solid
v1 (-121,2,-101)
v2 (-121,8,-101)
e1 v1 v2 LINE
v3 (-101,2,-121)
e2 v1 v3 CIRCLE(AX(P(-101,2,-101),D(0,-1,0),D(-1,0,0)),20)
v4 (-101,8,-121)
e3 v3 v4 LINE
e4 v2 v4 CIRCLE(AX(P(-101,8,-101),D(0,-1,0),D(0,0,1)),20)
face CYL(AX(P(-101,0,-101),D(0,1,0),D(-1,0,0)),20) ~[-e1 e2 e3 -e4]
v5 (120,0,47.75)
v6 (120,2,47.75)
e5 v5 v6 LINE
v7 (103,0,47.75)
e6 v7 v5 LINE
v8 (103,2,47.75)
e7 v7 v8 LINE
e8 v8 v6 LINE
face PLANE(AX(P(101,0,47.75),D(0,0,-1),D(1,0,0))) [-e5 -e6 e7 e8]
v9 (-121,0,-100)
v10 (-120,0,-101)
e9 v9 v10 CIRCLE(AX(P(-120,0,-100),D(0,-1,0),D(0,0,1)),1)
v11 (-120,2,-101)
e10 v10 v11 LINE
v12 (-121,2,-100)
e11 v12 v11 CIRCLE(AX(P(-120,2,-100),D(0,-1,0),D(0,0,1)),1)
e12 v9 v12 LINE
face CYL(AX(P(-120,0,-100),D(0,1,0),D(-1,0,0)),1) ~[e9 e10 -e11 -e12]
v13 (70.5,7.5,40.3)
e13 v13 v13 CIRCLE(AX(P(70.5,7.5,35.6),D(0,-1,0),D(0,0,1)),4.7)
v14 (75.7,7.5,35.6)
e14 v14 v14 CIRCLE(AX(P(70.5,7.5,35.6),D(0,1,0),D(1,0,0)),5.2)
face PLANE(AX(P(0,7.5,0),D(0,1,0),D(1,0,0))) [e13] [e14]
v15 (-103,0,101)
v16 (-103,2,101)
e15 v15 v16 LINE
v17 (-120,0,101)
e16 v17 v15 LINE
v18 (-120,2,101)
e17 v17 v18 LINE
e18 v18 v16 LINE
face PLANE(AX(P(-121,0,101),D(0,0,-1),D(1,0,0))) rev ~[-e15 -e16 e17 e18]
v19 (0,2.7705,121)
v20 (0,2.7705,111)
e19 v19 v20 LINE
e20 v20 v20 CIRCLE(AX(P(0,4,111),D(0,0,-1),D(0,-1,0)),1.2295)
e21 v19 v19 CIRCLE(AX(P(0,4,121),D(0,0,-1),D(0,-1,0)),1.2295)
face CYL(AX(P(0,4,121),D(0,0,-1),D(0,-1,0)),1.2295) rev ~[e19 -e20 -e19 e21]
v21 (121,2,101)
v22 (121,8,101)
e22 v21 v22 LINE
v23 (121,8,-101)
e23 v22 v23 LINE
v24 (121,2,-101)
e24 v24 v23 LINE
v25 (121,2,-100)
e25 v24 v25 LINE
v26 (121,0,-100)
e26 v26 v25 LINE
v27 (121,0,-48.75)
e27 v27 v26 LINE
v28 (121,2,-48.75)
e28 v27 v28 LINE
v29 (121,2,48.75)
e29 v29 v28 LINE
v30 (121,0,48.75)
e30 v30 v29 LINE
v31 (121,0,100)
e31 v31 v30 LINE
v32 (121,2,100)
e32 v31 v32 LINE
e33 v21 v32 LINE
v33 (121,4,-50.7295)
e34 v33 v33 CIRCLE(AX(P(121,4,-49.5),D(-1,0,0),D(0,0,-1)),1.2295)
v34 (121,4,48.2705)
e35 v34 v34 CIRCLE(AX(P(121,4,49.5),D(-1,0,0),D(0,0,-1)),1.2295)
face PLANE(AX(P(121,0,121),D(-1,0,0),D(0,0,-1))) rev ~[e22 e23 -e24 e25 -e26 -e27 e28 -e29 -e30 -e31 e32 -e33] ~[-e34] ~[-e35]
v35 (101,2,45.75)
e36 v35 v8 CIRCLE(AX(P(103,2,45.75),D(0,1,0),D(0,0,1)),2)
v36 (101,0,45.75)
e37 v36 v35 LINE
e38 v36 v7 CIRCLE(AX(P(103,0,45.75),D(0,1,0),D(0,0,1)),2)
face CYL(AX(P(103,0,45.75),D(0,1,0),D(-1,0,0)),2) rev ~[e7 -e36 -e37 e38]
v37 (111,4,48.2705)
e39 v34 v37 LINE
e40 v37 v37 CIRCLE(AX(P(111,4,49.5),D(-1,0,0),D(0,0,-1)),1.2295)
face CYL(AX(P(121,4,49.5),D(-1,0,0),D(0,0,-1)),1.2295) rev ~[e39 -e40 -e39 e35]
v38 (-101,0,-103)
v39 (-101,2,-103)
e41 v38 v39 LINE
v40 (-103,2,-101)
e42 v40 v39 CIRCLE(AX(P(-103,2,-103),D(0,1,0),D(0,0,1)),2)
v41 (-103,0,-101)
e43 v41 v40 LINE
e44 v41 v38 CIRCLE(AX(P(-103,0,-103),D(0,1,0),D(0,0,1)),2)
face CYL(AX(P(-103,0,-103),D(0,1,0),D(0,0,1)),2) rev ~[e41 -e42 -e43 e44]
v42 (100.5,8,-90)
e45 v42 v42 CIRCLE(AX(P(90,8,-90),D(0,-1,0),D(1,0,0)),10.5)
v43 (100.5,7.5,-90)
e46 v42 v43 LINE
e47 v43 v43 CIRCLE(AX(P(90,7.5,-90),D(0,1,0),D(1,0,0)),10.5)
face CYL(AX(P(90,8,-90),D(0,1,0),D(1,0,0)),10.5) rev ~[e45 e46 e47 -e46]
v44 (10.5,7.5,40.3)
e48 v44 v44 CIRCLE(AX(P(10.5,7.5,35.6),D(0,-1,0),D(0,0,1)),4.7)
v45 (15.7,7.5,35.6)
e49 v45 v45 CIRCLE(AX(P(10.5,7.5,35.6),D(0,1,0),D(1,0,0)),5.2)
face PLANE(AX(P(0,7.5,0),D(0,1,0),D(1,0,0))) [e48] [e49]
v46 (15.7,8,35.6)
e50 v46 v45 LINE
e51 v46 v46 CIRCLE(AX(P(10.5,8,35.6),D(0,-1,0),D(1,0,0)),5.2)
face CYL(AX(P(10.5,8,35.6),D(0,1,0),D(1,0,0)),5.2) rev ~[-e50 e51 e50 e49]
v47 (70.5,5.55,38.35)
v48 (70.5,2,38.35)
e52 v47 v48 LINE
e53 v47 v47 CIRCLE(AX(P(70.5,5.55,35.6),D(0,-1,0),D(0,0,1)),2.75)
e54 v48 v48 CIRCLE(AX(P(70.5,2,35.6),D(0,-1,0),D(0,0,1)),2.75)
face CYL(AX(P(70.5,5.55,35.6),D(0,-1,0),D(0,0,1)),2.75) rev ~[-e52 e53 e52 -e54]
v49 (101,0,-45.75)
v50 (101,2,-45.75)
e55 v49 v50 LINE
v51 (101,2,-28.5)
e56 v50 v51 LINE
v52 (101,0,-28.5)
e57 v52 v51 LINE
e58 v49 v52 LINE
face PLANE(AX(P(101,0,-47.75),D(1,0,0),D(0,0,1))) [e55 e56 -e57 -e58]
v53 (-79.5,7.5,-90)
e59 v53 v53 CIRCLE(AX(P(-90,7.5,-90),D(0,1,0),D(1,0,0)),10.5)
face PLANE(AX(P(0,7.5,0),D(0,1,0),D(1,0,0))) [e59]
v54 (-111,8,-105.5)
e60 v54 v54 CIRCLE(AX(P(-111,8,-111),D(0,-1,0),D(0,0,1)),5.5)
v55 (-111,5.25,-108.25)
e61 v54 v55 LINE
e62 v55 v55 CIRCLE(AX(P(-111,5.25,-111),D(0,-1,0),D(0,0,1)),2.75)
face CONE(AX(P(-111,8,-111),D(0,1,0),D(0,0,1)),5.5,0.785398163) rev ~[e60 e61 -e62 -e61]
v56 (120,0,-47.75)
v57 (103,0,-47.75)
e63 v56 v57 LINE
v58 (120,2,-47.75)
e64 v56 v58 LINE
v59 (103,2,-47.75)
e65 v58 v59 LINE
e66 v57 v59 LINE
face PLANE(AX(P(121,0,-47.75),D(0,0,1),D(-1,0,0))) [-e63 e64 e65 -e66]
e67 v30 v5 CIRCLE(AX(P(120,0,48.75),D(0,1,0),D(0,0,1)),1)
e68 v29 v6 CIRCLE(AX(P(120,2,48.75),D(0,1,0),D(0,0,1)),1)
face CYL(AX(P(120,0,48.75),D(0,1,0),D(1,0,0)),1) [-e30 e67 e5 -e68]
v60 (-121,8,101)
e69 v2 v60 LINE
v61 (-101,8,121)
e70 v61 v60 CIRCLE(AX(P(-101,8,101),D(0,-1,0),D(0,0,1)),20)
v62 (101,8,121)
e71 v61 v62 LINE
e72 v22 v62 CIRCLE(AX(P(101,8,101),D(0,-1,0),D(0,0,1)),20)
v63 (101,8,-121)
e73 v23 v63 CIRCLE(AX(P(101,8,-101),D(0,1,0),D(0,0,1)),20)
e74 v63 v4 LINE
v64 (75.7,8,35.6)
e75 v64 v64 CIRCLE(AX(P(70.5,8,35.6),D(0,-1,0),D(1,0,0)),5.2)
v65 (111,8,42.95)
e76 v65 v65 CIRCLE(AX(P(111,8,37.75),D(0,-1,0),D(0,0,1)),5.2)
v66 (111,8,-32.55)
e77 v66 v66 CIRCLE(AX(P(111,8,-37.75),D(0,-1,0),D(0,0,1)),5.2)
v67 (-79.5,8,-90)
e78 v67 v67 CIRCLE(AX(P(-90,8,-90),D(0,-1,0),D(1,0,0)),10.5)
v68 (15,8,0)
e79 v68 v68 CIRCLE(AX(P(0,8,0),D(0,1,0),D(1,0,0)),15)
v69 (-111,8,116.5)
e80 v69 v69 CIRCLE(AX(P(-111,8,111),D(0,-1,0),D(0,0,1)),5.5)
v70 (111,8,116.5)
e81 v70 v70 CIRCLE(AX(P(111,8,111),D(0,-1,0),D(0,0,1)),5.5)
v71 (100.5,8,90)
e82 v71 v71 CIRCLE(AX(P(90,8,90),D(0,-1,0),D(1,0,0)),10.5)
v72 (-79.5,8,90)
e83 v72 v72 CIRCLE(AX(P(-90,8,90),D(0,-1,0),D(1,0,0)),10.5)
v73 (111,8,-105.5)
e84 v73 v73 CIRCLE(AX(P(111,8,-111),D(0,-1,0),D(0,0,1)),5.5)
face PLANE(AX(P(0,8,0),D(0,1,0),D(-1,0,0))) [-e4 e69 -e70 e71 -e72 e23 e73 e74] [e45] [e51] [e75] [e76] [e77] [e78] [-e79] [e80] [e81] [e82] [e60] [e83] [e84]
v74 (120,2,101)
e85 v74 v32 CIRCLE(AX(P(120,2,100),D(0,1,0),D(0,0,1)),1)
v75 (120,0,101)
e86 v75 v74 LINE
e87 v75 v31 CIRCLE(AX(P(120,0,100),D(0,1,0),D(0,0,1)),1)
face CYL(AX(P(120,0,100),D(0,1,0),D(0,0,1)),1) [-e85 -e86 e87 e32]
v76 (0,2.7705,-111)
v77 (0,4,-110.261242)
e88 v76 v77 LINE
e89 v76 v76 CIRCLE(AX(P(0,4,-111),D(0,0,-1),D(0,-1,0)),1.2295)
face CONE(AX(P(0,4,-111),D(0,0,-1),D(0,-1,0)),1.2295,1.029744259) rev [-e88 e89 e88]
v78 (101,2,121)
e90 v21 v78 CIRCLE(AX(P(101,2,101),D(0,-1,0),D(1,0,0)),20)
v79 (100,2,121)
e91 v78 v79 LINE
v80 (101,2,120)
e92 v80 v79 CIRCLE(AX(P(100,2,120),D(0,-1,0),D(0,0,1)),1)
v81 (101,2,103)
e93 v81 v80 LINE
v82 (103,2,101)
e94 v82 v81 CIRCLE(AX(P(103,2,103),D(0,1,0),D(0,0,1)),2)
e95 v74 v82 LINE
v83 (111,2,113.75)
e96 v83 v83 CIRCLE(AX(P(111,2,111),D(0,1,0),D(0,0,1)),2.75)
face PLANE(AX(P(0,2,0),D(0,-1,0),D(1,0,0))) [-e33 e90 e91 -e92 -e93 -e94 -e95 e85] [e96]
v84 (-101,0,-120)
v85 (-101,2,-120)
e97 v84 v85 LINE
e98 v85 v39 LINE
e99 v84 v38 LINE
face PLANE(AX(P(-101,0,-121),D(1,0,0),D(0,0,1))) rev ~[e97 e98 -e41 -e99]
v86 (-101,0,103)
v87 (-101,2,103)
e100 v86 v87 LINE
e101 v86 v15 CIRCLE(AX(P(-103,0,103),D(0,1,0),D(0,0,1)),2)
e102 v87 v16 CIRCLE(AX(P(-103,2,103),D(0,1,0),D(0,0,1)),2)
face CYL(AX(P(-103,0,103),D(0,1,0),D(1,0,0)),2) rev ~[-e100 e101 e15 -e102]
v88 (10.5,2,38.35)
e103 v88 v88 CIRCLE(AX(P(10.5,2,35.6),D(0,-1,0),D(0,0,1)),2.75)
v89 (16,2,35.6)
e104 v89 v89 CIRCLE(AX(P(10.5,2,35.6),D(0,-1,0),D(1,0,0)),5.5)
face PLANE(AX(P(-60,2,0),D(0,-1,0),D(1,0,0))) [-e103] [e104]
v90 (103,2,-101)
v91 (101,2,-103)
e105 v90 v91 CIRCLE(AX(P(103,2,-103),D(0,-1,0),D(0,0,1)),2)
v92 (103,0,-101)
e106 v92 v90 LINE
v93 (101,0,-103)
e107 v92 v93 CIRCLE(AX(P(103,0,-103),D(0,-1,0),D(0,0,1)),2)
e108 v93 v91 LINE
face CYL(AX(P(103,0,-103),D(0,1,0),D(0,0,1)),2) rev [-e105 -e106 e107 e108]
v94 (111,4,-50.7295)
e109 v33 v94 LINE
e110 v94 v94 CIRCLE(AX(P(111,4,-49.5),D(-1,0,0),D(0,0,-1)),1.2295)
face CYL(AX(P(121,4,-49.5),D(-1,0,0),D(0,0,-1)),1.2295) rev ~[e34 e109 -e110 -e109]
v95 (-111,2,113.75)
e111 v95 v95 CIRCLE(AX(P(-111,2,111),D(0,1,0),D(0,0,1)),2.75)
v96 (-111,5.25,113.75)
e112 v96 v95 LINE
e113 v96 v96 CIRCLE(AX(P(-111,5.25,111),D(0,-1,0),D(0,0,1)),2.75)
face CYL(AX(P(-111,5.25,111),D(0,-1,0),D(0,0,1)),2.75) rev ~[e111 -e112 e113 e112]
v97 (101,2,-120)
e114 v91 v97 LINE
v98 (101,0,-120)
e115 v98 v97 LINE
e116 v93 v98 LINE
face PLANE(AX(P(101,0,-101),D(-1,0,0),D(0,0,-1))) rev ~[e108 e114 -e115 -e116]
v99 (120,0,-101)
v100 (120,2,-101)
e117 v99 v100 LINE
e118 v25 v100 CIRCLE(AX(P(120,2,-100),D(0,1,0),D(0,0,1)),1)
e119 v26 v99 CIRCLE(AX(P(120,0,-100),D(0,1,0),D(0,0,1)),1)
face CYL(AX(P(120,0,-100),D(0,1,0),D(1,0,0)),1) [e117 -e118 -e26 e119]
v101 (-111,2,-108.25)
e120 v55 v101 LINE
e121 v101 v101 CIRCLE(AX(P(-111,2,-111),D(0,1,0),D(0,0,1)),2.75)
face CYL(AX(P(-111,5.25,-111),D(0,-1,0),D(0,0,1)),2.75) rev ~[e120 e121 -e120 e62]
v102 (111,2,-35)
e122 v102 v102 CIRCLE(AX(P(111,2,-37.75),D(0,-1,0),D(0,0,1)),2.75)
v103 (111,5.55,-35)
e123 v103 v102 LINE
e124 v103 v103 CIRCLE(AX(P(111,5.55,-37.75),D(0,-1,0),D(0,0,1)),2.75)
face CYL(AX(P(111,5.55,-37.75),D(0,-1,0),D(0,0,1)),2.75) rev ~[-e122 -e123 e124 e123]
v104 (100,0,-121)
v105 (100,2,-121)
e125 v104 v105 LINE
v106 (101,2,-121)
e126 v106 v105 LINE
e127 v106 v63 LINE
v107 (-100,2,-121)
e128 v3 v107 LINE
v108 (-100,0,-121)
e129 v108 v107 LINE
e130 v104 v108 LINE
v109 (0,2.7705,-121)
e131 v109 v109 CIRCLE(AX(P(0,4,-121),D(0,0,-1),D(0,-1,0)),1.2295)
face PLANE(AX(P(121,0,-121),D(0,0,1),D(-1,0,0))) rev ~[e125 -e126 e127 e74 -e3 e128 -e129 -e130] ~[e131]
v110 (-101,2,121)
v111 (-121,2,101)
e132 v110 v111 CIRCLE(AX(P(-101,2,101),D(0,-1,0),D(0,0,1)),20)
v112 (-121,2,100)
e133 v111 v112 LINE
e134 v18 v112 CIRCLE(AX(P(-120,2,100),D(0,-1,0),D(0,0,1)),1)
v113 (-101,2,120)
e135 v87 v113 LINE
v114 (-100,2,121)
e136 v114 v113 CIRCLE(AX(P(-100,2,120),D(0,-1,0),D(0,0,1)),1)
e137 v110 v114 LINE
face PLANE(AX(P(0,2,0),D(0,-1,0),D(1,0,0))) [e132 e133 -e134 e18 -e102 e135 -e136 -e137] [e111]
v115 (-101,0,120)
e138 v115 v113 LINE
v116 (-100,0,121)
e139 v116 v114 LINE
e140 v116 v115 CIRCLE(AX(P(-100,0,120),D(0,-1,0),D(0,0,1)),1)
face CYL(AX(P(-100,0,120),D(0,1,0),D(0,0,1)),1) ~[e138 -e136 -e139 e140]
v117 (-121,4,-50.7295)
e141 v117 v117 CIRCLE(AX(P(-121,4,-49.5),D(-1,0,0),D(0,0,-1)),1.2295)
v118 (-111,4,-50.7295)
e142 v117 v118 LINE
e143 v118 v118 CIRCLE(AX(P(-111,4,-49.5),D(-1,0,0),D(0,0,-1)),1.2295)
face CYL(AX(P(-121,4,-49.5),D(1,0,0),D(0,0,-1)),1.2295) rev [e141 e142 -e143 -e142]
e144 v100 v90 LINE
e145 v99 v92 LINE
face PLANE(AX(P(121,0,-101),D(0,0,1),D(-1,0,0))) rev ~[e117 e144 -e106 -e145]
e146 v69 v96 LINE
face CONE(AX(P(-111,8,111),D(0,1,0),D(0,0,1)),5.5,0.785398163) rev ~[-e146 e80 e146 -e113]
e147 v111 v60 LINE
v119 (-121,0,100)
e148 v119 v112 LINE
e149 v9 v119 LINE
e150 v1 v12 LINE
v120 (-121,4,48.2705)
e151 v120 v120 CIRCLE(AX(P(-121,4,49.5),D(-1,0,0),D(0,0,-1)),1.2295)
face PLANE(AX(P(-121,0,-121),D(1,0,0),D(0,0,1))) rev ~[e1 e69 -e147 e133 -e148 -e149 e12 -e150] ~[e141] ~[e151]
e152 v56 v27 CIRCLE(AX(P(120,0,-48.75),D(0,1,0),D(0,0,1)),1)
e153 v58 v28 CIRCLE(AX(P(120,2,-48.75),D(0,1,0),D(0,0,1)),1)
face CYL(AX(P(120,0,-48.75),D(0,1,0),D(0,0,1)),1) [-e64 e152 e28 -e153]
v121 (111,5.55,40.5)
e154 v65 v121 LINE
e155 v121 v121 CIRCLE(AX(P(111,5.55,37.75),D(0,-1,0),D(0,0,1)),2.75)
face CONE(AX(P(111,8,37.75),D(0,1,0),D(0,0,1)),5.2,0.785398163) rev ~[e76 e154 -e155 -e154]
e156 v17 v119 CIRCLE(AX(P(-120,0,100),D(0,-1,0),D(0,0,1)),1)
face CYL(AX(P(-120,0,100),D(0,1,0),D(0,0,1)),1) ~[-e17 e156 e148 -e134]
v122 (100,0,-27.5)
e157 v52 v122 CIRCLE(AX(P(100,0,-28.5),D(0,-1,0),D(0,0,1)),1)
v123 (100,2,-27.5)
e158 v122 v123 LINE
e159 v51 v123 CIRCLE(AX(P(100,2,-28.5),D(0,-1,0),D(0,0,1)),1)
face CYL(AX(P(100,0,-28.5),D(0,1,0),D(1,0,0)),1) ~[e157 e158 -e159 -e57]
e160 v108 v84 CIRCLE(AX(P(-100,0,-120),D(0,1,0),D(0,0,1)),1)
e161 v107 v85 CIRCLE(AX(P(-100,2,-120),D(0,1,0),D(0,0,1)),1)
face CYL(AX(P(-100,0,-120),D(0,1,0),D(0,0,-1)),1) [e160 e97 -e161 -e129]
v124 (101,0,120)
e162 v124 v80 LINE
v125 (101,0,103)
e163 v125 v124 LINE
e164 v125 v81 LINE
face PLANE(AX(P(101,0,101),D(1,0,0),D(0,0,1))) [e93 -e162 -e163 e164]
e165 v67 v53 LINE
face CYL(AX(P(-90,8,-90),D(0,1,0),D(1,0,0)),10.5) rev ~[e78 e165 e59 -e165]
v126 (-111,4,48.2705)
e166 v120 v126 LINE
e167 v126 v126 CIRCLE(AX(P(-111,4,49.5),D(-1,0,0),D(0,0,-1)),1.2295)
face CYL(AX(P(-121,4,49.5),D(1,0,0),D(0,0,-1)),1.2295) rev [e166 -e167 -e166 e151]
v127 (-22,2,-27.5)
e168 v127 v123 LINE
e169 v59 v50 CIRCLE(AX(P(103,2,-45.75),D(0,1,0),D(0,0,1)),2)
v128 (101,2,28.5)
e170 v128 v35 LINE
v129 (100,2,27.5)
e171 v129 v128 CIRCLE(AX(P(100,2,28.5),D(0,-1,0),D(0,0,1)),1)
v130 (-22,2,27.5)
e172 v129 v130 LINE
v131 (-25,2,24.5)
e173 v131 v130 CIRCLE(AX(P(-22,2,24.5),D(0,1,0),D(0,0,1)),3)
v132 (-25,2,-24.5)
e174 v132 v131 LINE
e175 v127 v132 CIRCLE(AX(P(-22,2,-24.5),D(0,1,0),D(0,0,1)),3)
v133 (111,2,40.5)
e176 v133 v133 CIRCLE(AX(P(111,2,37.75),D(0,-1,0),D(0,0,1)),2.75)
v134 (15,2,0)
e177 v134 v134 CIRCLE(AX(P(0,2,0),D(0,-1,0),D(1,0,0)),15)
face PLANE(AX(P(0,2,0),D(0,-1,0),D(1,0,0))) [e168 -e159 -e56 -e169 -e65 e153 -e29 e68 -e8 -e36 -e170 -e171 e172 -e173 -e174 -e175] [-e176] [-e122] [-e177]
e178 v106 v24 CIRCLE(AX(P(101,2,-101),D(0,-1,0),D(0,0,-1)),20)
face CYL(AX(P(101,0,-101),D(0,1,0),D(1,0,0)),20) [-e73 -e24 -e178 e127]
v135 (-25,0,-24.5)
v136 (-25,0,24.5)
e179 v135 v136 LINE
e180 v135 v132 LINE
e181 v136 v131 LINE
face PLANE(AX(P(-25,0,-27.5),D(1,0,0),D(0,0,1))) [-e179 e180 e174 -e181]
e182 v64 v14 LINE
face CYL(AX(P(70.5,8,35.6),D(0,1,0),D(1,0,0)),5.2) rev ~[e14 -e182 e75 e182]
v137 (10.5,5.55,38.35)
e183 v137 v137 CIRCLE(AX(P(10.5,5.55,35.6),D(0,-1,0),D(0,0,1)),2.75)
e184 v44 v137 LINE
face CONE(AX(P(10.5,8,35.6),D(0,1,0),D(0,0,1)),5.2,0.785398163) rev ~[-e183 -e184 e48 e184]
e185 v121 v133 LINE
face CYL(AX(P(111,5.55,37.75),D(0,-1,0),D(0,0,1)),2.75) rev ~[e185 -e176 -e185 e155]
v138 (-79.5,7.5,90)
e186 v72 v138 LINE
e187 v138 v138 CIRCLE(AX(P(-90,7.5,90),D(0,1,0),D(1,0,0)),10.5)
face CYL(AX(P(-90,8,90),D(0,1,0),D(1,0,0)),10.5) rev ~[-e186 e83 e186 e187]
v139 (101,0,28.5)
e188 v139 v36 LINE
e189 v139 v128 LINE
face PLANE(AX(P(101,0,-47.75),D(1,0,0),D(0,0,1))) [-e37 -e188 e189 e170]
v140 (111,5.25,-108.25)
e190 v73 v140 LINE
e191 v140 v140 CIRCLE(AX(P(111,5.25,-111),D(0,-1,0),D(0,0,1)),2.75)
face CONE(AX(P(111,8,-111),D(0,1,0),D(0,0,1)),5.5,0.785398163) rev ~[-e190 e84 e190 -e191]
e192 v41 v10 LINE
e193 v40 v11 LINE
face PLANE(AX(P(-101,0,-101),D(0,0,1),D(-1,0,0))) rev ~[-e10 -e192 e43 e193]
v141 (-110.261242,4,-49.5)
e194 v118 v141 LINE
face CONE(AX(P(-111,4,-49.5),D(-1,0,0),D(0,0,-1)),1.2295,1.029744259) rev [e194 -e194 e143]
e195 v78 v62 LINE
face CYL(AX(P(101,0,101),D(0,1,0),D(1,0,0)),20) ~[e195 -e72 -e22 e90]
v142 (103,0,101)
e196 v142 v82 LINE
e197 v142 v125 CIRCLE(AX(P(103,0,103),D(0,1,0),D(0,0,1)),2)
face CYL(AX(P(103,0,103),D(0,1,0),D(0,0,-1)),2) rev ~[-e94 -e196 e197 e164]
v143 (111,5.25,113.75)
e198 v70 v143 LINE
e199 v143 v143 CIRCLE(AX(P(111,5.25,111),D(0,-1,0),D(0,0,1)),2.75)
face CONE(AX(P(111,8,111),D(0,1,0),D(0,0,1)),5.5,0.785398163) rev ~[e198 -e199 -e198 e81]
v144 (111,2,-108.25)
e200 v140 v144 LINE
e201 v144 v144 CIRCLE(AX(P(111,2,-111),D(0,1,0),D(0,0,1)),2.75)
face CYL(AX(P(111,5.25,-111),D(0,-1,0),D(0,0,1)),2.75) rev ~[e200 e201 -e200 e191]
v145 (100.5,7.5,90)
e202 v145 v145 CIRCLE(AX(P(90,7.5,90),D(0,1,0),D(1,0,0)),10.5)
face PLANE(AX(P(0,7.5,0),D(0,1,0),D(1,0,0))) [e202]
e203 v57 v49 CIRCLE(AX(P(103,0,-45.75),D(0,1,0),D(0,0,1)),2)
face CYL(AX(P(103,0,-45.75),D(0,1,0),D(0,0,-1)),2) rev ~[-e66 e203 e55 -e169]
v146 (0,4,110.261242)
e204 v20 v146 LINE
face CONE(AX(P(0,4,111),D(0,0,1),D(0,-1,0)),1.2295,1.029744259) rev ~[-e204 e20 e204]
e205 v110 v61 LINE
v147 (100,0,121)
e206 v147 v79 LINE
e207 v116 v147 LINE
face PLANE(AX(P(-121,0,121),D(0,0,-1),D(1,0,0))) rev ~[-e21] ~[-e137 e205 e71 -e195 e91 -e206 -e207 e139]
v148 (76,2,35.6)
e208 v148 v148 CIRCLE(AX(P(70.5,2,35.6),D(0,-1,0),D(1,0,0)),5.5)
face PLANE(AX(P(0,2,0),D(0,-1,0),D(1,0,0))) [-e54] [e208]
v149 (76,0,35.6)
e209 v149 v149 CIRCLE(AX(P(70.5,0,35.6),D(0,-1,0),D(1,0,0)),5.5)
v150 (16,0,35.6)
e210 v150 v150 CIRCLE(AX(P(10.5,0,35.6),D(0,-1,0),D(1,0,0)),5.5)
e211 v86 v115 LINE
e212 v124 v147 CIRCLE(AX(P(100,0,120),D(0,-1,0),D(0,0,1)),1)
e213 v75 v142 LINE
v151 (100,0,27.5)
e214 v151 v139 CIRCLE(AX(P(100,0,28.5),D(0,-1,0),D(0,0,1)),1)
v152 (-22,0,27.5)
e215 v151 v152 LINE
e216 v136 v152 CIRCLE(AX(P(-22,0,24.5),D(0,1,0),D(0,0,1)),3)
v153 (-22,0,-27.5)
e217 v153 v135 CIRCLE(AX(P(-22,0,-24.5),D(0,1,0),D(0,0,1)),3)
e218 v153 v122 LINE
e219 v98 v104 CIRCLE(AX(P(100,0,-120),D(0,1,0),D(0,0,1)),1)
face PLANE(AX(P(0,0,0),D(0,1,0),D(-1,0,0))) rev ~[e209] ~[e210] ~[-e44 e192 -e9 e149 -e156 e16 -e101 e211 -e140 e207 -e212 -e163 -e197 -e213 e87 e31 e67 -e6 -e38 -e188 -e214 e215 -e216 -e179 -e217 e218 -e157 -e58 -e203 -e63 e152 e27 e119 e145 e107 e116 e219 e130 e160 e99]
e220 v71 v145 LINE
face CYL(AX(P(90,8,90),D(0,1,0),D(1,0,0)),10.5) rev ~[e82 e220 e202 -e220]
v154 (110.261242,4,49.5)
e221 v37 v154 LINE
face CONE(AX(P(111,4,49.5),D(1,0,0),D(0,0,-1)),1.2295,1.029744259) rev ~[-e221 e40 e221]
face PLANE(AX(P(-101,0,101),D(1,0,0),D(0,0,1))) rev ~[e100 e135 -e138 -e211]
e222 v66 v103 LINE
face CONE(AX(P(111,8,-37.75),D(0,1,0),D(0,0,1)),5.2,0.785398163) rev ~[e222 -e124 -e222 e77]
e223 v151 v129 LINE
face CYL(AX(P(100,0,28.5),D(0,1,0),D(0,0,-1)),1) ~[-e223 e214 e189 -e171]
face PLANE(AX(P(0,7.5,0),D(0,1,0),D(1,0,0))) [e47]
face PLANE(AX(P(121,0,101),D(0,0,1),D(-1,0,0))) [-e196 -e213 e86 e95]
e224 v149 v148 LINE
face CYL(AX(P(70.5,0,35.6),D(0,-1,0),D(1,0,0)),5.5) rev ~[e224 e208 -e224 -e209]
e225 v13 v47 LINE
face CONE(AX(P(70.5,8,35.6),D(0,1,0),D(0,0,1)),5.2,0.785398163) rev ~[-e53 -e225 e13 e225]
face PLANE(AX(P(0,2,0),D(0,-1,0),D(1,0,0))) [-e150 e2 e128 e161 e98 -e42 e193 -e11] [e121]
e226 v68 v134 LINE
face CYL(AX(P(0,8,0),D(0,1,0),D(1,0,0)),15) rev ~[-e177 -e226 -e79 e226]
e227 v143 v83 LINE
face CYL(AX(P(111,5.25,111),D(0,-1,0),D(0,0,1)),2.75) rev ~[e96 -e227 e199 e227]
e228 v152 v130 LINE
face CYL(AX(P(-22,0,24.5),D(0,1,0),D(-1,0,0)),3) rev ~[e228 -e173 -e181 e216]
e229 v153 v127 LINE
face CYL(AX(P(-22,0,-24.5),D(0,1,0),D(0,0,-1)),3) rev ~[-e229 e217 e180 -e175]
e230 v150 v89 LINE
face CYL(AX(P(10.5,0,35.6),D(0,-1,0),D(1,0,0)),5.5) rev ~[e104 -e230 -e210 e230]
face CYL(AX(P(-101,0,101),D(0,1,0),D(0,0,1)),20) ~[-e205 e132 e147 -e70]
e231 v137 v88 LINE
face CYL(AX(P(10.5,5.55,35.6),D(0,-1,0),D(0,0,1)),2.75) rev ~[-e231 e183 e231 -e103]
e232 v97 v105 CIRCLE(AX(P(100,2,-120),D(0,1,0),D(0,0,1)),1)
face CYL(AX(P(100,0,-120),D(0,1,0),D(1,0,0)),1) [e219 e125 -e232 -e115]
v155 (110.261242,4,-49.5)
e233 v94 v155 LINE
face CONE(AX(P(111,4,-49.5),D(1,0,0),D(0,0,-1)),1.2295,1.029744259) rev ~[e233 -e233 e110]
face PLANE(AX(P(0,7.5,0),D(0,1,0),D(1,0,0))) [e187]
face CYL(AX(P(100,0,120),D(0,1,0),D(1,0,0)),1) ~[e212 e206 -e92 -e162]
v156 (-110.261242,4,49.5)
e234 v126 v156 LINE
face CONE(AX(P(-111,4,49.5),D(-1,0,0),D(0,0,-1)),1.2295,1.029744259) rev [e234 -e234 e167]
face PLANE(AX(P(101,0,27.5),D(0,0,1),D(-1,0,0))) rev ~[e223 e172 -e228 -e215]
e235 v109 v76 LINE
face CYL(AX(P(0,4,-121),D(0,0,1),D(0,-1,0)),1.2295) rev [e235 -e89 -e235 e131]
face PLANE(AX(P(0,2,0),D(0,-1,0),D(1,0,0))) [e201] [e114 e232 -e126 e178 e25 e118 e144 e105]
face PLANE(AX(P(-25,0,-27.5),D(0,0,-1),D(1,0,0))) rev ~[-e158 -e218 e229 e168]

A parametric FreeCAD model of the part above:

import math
import FreeCAD as App
import Part
import Sketcher
Q = App.Units.Quantity


def edges_at(feature, points):
    """Names of the edges that pass closest to the given points."""
    edges = feature.Shape.Edges
    near = lambda p: min(range(len(edges)), key=lambda i: edges[i].distToShape(Part.Vertex(*p))[0])
    return sorted({f"Edge{near(p) + 1}" for p in points})

doc = App.newDocument("Part")
body = doc.addObject("PartDesign::Body", "Body")

# Sketch on XZ plane
sketch1 = body.newObject("Sketcher::SketchObject", "Sketch")
sketch1.AttachmentSupport = (doc.getObject("XZ_Plane"), [""])
sketch1.MapMode = "FlatFace"
sketch1.addGeometry(Part.LineSegment(App.Vector(121, 121, 0), App.Vector(121, -121, 0)), False)
sketch1.addGeometry(Part.LineSegment(App.Vector(121, -121, 0), App.Vector(-121, -121, 0)), False)
sketch1.addGeometry(Part.LineSegment(App.Vector(-121, -121, 0), App.Vector(-121, 121, 0)), False)
sketch1.addGeometry(Part.LineSegment(App.Vector(-121, 121, 0), App.Vector(121, 121, 0)), False)
sketch1.addConstraint(Sketcher.Constraint("Coincident", 0, 2, 1, 1))
sketch1.addConstraint(Sketcher.Constraint("Coincident", 1, 2, 2, 1))
sketch1.addConstraint(Sketcher.Constraint("Coincident", 2, 2, 3, 1))
sketch1.addConstraint(Sketcher.Constraint("Coincident", 3, 2, 0, 1))
sketch1.addConstraint(Sketcher.Constraint("Vertical", 0))
sketch1.addConstraint(Sketcher.Constraint("Horizontal", 1))
sketch1.addConstraint(Sketcher.Constraint("Vertical", 2))
sketch1.addConstraint(Sketcher.Constraint("Horizontal", 3))
sketch1.addConstraint(Sketcher.Constraint("Symmetric", 0, 2, 2, 2, -1, 1))
sketch1.addConstraint(Sketcher.Constraint("Equal", 3, 0))
sketch1.addConstraint(Sketcher.Constraint("DistanceX", 1, 2, 1, 1, Q("242 mm")))
pad1 = body.newObject("PartDesign::Pad", "Pad")
pad1.Profile = sketch1
pad1.Length = 8
pad1.Reversed = True
doc.recompute()

fillet = body.newObject("PartDesign::Fillet", "Fillet")
fillet.Base = (pad1, edges_at(pad1, [
    (121, 4, 121),
    (121, 4, -121),
    (-121, 4, -121),
    (-121, 4, 121),
]))
fillet.Radius = 20

# Sketch on XZ plane
sketch2 = body.newObject("Sketcher::SketchObject", "Sketch001")
sketch2.AttachmentSupport = (doc.getObject("XZ_Plane"), [""])
sketch2.MapMode = "FlatFace"
sketch2.AttachmentOffset = App.Placement(App.Vector(0, 0, -8), App.Rotation())
sketch2.addGeometry(Part.Circle(App.Vector(0, 0, 0), App.Vector(0, 0, 1), 15), False)
sketch2.addConstraint(Sketcher.Constraint("Coincident", 0, 3, -1, 1))
sketch2.addConstraint(Sketcher.Constraint("Diameter", 0, Q("30 mm")))
pocket1 = body.newObject("PartDesign::Pocket", "Pocket")
pocket1.Profile = sketch2
pocket1.Length = 10
pocket1.Reversed = True

# Sketch on XZ plane
sketch3 = body.newObject("Sketcher::SketchObject", "Sketch002")
sketch3.AttachmentSupport = (doc.getObject("XZ_Plane"), [""])
sketch3.MapMode = "FlatFace"
sketch3.AttachmentOffset = App.Placement(App.Vector(0, 0, -8), App.Rotation())
sketch3.addGeometry(Part.Circle(App.Vector(-111, 111, 0), App.Vector(0, 0, 1), 2.75), False)
sketch3.addGeometry(Part.Circle(App.Vector(-111, -111, 0), App.Vector(0, 0, 1), 2.75), False)
sketch3.addGeometry(Part.Circle(App.Vector(111, 111, 0), App.Vector(0, 0, 1), 2.75), False)
sketch3.addGeometry(Part.Circle(App.Vector(111, -111, 0), App.Vector(0, 0, 1), 2.75), False)
sketch3.addConstraint(Sketcher.Constraint("Equal", 0, 1))
sketch3.addConstraint(Sketcher.Constraint("Equal", 1, 2))
sketch3.addConstraint(Sketcher.Constraint("Equal", 2, 3))
sketch3.addConstraint(Sketcher.Constraint("Symmetric", 1, 3, 2, 3, -1, 1))
sketch3.addConstraint(Sketcher.Constraint("Symmetric", 0, 3, 3, 3, -1, 1))
sketch3.addConstraint(Sketcher.Constraint("Symmetric", 0, 3, 2, 3, -2))
sketch3.addConstraint(Sketcher.Constraint("Diameter", 0, Q("5.5 mm")))
sketch3.addConstraint(Sketcher.Constraint("DistanceX", 0, 3, -1, 1, Q("111 mm")))
sketch3.addConstraint(Sketcher.Constraint("DistanceY", -1, 1, 0, 3, Q("111 mm")))
doc.recompute()
hole = body.newObject("PartDesign::Hole", "Hole")
hole.Profile = sketch3
hole.ThreadType = "None"
hole.Diameter = 5.5
hole.DepthType = "Dimension"
hole.Depth = 20
hole.DrillPoint = "Angled"
hole.DrillPointAngle = 118
hole.HoleCutType = "Countersink"
hole.HoleCutDiameter = 11
hole.HoleCutCountersinkAngle = 90
hole.Reversed = True

# Sketch on YZ plane
sketch4 = body.newObject("Sketcher::SketchObject", "Sketch003")
sketch4.AttachmentSupport = (doc.getObject("YZ_Plane"), [""])
sketch4.MapMode = "FlatFace"
sketch4.AttachmentOffset = App.Placement(App.Vector(0, 0, 121), App.Rotation())
sketch4.addGeometry(Part.Circle(App.Vector(4, 49.5, 0), App.Vector(0, 0, 1), 1.2295), False)
sketch4.addGeometry(Part.Circle(App.Vector(4, -49.5, 0), App.Vector(0, 0, 1), 1.2295), False)
sketch4.addConstraint(Sketcher.Constraint("Equal", 0, 1))
sketch4.addConstraint(Sketcher.Constraint("Symmetric", 0, 3, 1, 3, -1))
sketch4.addConstraint(Sketcher.Constraint("Diameter", 0, Q("2.459 mm")))
sketch4.addConstraint(Sketcher.Constraint("DistanceX", -1, 1, 0, 3, Q("4 mm")))
sketch4.addConstraint(Sketcher.Constraint("DistanceY", 1, 3, 0, 3, Q("99 mm")))
doc.recompute()
hole2 = body.newObject("PartDesign::Hole", "Hole001")
hole2.Profile = sketch4
hole2.ThreadType = "None"
hole2.Diameter = 2.459
hole2.DepthType = "Dimension"
hole2.Depth = 10
hole2.DrillPoint = "Angled"
hole2.DrillPointAngle = 118

# Sketch on XY plane
sketch5 = body.newObject("Sketcher::SketchObject", "Sketch004")
sketch5.AttachmentSupport = (doc.getObject("XY_Plane"), [""])
sketch5.MapMode = "FlatFace"
sketch5.AttachmentOffset = App.Placement(App.Vector(0, 0, 121), App.Rotation())
sketch5.addGeometry(Part.Circle(App.Vector(0, 4, 0), App.Vector(0, 0, 1), 1.2295), False)
sketch5.addConstraint(Sketcher.Constraint("PointOnObject", 0, 3, -2))
sketch5.addConstraint(Sketcher.Constraint("Diameter", 0, Q("2.459 mm")))
sketch5.addConstraint(Sketcher.Constraint("DistanceY", -1, 1, 0, 3, Q("4 mm")))
doc.recompute()
hole3 = body.newObject("PartDesign::Hole", "Hole002")
hole3.Profile = sketch5
hole3.ThreadType = "None"
hole3.Diameter = 2.459
hole3.DepthType = "Dimension"
hole3.Depth = 10
hole3.DrillPoint = "Angled"
hole3.DrillPointAngle = 118
doc.recompute()

mirrored = body.newObject("PartDesign::Mirrored", "Mirrored")
mirrored.Originals = [hole2]
mirrored.MirrorPlane = (doc.getObject("YZ_Plane"), [""])
body.Tip = mirrored
doc.recompute()

mirrored2 = body.newObject("PartDesign::Mirrored", "Mirrored001")
mirrored2.Originals = [hole3]
mirrored2.MirrorPlane = (doc.getObject("XY_Plane"), [""])
body.Tip = mirrored2

# Sketch on XZ plane
sketch6 = body.newObject("Sketcher::SketchObject", "Sketch005")
sketch6.AttachmentSupport = (doc.getObject("XZ_Plane"), [""])
sketch6.MapMode = "FlatFace"
sketch6.addGeometry(Part.LineSegment(App.Vector(-101, 101, 0), App.Vector(-101, 121, 0)), False)
sketch6.addGeometry(Part.ArcOfCircle(Part.Circle(App.Vector(-101, 101, 0), App.Vector(0, 0, 1), 20), math.radians(90), math.radians(180)), False)
sketch6.addGeometry(Part.LineSegment(App.Vector(-121, 101, 0), App.Vector(-101, 101, 0)), False)
sketch6.addGeometry(Part.Circle(App.Vector(-111, 111, 0), App.Vector(0, 0, 1), 2.75), False)
sketch6.addGeometry(Part.ArcOfCircle(Part.Circle(App.Vector(101, 101, 0), App.Vector(0, 0, 1), 20), math.radians(0), math.radians(90)), False)
sketch6.addGeometry(Part.LineSegment(App.Vector(101, 121, 0), App.Vector(101, 101, 0)), False)
sketch6.addGeometry(Part.LineSegment(App.Vector(101, 101, 0), App.Vector(121, 101, 0)), False)
sketch6.addGeometry(Part.Circle(App.Vector(111, 111, 0), App.Vector(0, 0, 1), 2.75), False)
sketch6.addGeometry(Part.LineSegment(App.Vector(-101, -101, 0), App.Vector(-121, -101, 0)), False)
sketch6.addGeometry(Part.ArcOfCircle(Part.Circle(App.Vector(-101, -101, 0), App.Vector(0, 0, 1), 20), math.radians(180), math.radians(270)), False)
sketch6.addGeometry(Part.LineSegment(App.Vector(-101, -121, 0), App.Vector(-101, -101, 0)), False)
sketch6.addGeometry(Part.Circle(App.Vector(-111, -111, 0), App.Vector(0, 0, 1), 2.75), False)
sketch6.addGeometry(Part.ArcOfCircle(Part.Circle(App.Vector(101, -101, 0), App.Vector(0, 0, 1), 20), math.radians(-90), math.radians(0)), False)
sketch6.addGeometry(Part.LineSegment(App.Vector(121, -101, 0), App.Vector(101, -101, 0)), False)
sketch6.addGeometry(Part.LineSegment(App.Vector(101, -101, 0), App.Vector(101, -121, 0)), False)
sketch6.addGeometry(Part.Circle(App.Vector(111, -111, 0), App.Vector(0, 0, 1), 2.75), False)
sketch6.addConstraint(Sketcher.Constraint("Coincident", 0, 2, 1, 1))
sketch6.addConstraint(Sketcher.Constraint("Coincident", 1, 2, 2, 1))
sketch6.addConstraint(Sketcher.Constraint("Coincident", 2, 2, 0, 1))
sketch6.addConstraint(Sketcher.Constraint("Coincident", 4, 2, 5, 1))
sketch6.addConstraint(Sketcher.Constraint("Coincident", 5, 2, 6, 1))
sketch6.addConstraint(Sketcher.Constraint("Coincident", 6, 2, 4, 1))
sketch6.addConstraint(Sketcher.Constraint("Coincident", 8, 2, 9, 1))
sketch6.addConstraint(Sketcher.Constraint("Coincident", 9, 2, 10, 1))
sketch6.addConstraint(Sketcher.Constraint("Coincident", 10, 2, 8, 1))
sketch6.addConstraint(Sketcher.Constraint("Coincident", 12, 2, 13, 1))
sketch6.addConstraint(Sketcher.Constraint("Coincident", 13, 2, 14, 1))
sketch6.addConstraint(Sketcher.Constraint("Coincident", 14, 2, 12, 1))
sketch6.addConstraint(Sketcher.Constraint("Vertical", 0))
sketch6.addConstraint(Sketcher.Constraint("Horizontal", 2))
sketch6.addConstraint(Sketcher.Constraint("Vertical", 5))
sketch6.addConstraint(Sketcher.Constraint("Horizontal", 6))
sketch6.addConstraint(Sketcher.Constraint("Horizontal", 8))
sketch6.addConstraint(Sketcher.Constraint("Vertical", 10))
sketch6.addConstraint(Sketcher.Constraint("Horizontal", 13))
sketch6.addConstraint(Sketcher.Constraint("Vertical", 14))
sketch6.addConstraint(Sketcher.Constraint("Coincident", 2, 2, 1, 3))
sketch6.addConstraint(Sketcher.Constraint("Coincident", 5, 2, 4, 3))
sketch6.addConstraint(Sketcher.Constraint("Coincident", 10, 2, 9, 3))
sketch6.addConstraint(Sketcher.Constraint("Coincident", 13, 2, 12, 3))
sketch6.addConstraint(Sketcher.Constraint("Equal", 1, 4))
sketch6.addConstraint(Sketcher.Constraint("Equal", 3, 7))
sketch6.addConstraint(Sketcher.Constraint("Equal", 4, 9))
sketch6.addConstraint(Sketcher.Constraint("Equal", 7, 11))
sketch6.addConstraint(Sketcher.Constraint("Equal", 9, 12))
sketch6.addConstraint(Sketcher.Constraint("Equal", 11, 15))
sketch6.addConstraint(Sketcher.Constraint("Symmetric", 4, 3, 9, 3, -1, 1))
sketch6.addConstraint(Sketcher.Constraint("Symmetric", 7, 3, 11, 3, -1, 1))
sketch6.addConstraint(Sketcher.Constraint("Symmetric", 1, 3, 12, 3, -1, 1))
sketch6.addConstraint(Sketcher.Constraint("Symmetric", 3, 3, 15, 3, -1, 1))
sketch6.addConstraint(Sketcher.Constraint("Symmetric", 1, 3, 4, 3, -2))
sketch6.addConstraint(Sketcher.Constraint("Symmetric", 3, 3, 7, 3, -2))
sketch6.addConstraint(Sketcher.Constraint("Radius", 1, Q("20 mm")))
sketch6.addConstraint(Sketcher.Constraint("Diameter", 3, Q("5.5 mm")))
sketch6.addConstraint(Sketcher.Constraint("DistanceX", 1, 3, -1, 1, Q("101 mm")))
sketch6.addConstraint(Sketcher.Constraint("DistanceY", -1, 1, 1, 3, Q("101 mm")))
sketch6.addConstraint(Sketcher.Constraint("DistanceX", 3, 3, -1, 1, Q("111 mm")))
sketch6.addConstraint(Sketcher.Constraint("DistanceY", -1, 1, 3, 3, Q("111 mm")))
pocket2 = body.newObject("PartDesign::Pocket", "Pocket001")
pocket2.Profile = sketch6
pocket2.Length = 2
doc.recompute()

fillet2 = body.newObject("PartDesign::Fillet", "Fillet001")
fillet2.Base = (pocket2, edges_at(pocket2, [
    (101, 1, 101),
    (101, 1, -101),
    (-101, 1, -101),
    (-101, 1, 101),
]))
fillet2.Radius = 2
doc.recompute()

fillet3 = body.newObject("PartDesign::Fillet", "Fillet002")
fillet3.Base = (fillet2, edges_at(fillet2, [
    (101, 1, 121),
    (121, 1, 101),
    (121, 1, -101),
    (101, 1, -121),
    (-121, 1, -101),
    (-101, 1, -121),
    (-121, 1, 101),
    (-101, 1, 121),
]))
fillet3.Radius = 1

# Sketch on XZ plane
sketch7 = body.newObject("Sketcher::SketchObject", "Sketch006")
sketch7.AttachmentSupport = (doc.getObject("XZ_Plane"), [""])
sketch7.MapMode = "FlatFace"
sketch7.addGeometry(Part.LineSegment(App.Vector(101, -47.75, 0), App.Vector(121, -47.75, 0)), False)
sketch7.addGeometry(Part.LineSegment(App.Vector(121, -47.75, 0), App.Vector(121, 47.75, 0)), False)
sketch7.addGeometry(Part.LineSegment(App.Vector(121, 47.75, 0), App.Vector(101, 47.75, 0)), False)
sketch7.addGeometry(Part.LineSegment(App.Vector(101, 47.75, 0), App.Vector(101, -47.75, 0)), False)
sketch7.addConstraint(Sketcher.Constraint("Coincident", 0, 2, 1, 1))
sketch7.addConstraint(Sketcher.Constraint("Coincident", 1, 2, 2, 1))
sketch7.addConstraint(Sketcher.Constraint("Coincident", 2, 2, 3, 1))
sketch7.addConstraint(Sketcher.Constraint("Coincident", 3, 2, 0, 1))
sketch7.addConstraint(Sketcher.Constraint("Horizontal", 0))
sketch7.addConstraint(Sketcher.Constraint("Vertical", 1))
sketch7.addConstraint(Sketcher.Constraint("Horizontal", 2))
sketch7.addConstraint(Sketcher.Constraint("Vertical", 3))
sketch7.addConstraint(Sketcher.Constraint("DistanceX", 0, 1, 0, 2, Q("20 mm")))
sketch7.addConstraint(Sketcher.Constraint("DistanceY", 1, 1, 1, 2, Q("95.5 mm")))
sketch7.addConstraint(Sketcher.Constraint("DistanceX", -1, 1, 0, 2, Q("121 mm")))
sketch7.addConstraint(Sketcher.Constraint("DistanceY", 0, 2, -1, 1, Q("47.75 mm")))
pocket3 = body.newObject("PartDesign::Pocket", "Pocket002")
pocket3.Profile = sketch7
pocket3.Length = 2
doc.recompute()

fillet4 = body.newObject("PartDesign::Fillet", "Fillet003")
fillet4.Base = (pocket3, edges_at(pocket3, [(101, 1, 47.75), (101, 1, -47.75)]))
fillet4.Radius = 2
doc.recompute()

fillet5 = body.newObject("PartDesign::Fillet", "Fillet004")
fillet5.Base = (fillet4, edges_at(fillet4, [(121, 1, -47.75), (121, 1, 47.75)]))
fillet5.Radius = 1

# Sketch on XZ plane
sketch8 = body.newObject("Sketcher::SketchObject", "Sketch007")
sketch8.AttachmentSupport = (doc.getObject("XZ_Plane"), [""])
sketch8.MapMode = "FlatFace"
sketch8.AttachmentOffset = App.Placement(App.Vector(0, 0, -8), App.Rotation())
sketch8.addGeometry(Part.Circle(App.Vector(111, -37.75, 0), App.Vector(0, 0, 1), 2.75), False)
sketch8.addGeometry(Part.Circle(App.Vector(111, 37.75, 0), App.Vector(0, 0, 1), 2.75), False)
sketch8.addConstraint(Sketcher.Constraint("Equal", 0, 1))
sketch8.addConstraint(Sketcher.Constraint("Symmetric", 0, 3, 1, 3, -1))
sketch8.addConstraint(Sketcher.Constraint("Diameter", 0, Q("5.5 mm")))
sketch8.addConstraint(Sketcher.Constraint("DistanceX", -1, 1, 0, 3, Q("111 mm")))
sketch8.addConstraint(Sketcher.Constraint("DistanceY", 0, 3, 1, 3, Q("75.5 mm")))
doc.recompute()
hole4 = body.newObject("PartDesign::Hole", "Hole003")
hole4.Profile = sketch8
hole4.ThreadType = "None"
hole4.Diameter = 5.5
hole4.DepthType = "ThroughAll"
hole4.HoleCutType = "Countersink"
hole4.HoleCutDiameter = 10.4
hole4.HoleCutCountersinkAngle = 90
hole4.Reversed = True

# Sketch on XZ plane
sketch9 = body.newObject("Sketcher::SketchObject", "Sketch008")
sketch9.AttachmentSupport = (doc.getObject("XZ_Plane"), [""])
sketch9.MapMode = "FlatFace"
sketch9.addGeometry(Part.LineSegment(App.Vector(101, -27.5, 0), App.Vector(101, 27.5, 0)), False)
sketch9.addGeometry(Part.LineSegment(App.Vector(101, 27.5, 0), App.Vector(-25, 27.5, 0)), False)
sketch9.addGeometry(Part.LineSegment(App.Vector(-25, 27.5, 0), App.Vector(-25, -27.5, 0)), False)
sketch9.addGeometry(Part.LineSegment(App.Vector(-25, -27.5, 0), App.Vector(101, -27.5, 0)), False)
sketch9.addGeometry(Part.Circle(App.Vector(0, 0, 0), App.Vector(0, 0, 1), 15), False)
sketch9.addConstraint(Sketcher.Constraint("Coincident", 0, 2, 1, 1))
sketch9.addConstraint(Sketcher.Constraint("Coincident", 1, 2, 2, 1))
sketch9.addConstraint(Sketcher.Constraint("Coincident", 2, 2, 3, 1))
sketch9.addConstraint(Sketcher.Constraint("Coincident", 3, 2, 0, 1))
sketch9.addConstraint(Sketcher.Constraint("Vertical", 0))
sketch9.addConstraint(Sketcher.Constraint("Horizontal", 1))
sketch9.addConstraint(Sketcher.Constraint("Vertical", 2))
sketch9.addConstraint(Sketcher.Constraint("Horizontal", 3))
sketch9.addConstraint(Sketcher.Constraint("Coincident", 4, 3, -1, 1))
sketch9.addConstraint(Sketcher.Constraint("DistanceY", 0, 1, 0, 2, Q("55 mm")))
sketch9.addConstraint(Sketcher.Constraint("Diameter", 4, Q("30 mm")))
sketch9.addConstraint(Sketcher.Constraint("DistanceX", 1, 2, -1, 1, Q("25 mm")))
sketch9.addConstraint(Sketcher.Constraint("DistanceX", 1, 2, 1, 1, Q("126 mm")))
sketch9.addConstraint(Sketcher.Constraint("DistanceY", -1, 1, 0, 2, Q("27.5 mm")))
pocket4 = body.newObject("PartDesign::Pocket", "Pocket003")
pocket4.Profile = sketch9
pocket4.Length = 2
doc.recompute()

fillet6 = body.newObject("PartDesign::Fillet", "Fillet005")
fillet6.Base = (pocket4, edges_at(pocket4, [(101, 1, 27.5), (101, 1, -27.5)]))
fillet6.Radius = 1
doc.recompute()

fillet7 = body.newObject("PartDesign::Fillet", "Fillet006")
fillet7.Base = (fillet6, edges_at(fillet6, [(-25, 1, -27.5), (-25, 1, 27.5)]))
fillet7.Radius = 3

# Sketch on XZ plane
sketch10 = body.newObject("Sketcher::SketchObject", "Sketch009")
sketch10.AttachmentSupport = (doc.getObject("XZ_Plane"), [""])
sketch10.MapMode = "FlatFace"
sketch10.addGeometry(Part.Circle(App.Vector(70.5, 35.6, 0), App.Vector(0, 0, 1), 5.5), False)
sketch10.addConstraint(Sketcher.Constraint("Diameter", 0, Q("11 mm")))
sketch10.addConstraint(Sketcher.Constraint("DistanceY", -1, 1, 0, 3, Q("35.6 mm")))
sketch10.addConstraint(Sketcher.Constraint("DistanceX", -1, 1, 0, 3, Q("70.5 mm")))
pocket5 = body.newObject("PartDesign::Pocket", "Pocket004")
pocket5.Profile = sketch10
pocket5.Length = 2

# Sketch on XZ plane
sketch11 = body.newObject("Sketcher::SketchObject", "Sketch010")
sketch11.AttachmentSupport = (doc.getObject("XZ_Plane"), [""])
sketch11.MapMode = "FlatFace"
sketch11.AttachmentOffset = App.Placement(App.Vector(0, 0, -8), App.Rotation())
sketch11.addGeometry(Part.Circle(App.Vector(70.5, 35.6, 0), App.Vector(0, 0, 1), 2.75), False)
sketch11.addConstraint(Sketcher.Constraint("Diameter", 0, Q("5.5 mm")))
sketch11.addConstraint(Sketcher.Constraint("DistanceX", -1, 1, 0, 3, Q("70.5 mm")))
sketch11.addConstraint(Sketcher.Constraint("DistanceY", -1, 1, 0, 3, Q("35.6 mm")))
doc.recompute()
hole5 = body.newObject("PartDesign::Hole", "Hole004")
hole5.Profile = sketch11
hole5.ThreadType = "None"
hole5.Diameter = 5.5
hole5.DepthType = "Dimension"
hole5.Depth = 8
hole5.DrillPoint = "Flat"
hole5.HoleCutType = "Countersink"
hole5.HoleCutDiameter = 10.4
hole5.HoleCutCountersinkAngle = 90
hole5.Reversed = True
doc.recompute()

linearpattern = body.newObject("PartDesign::LinearPattern", "LinearPattern")
linearpattern.Originals = [hole5, pocket5]
linearpattern.Direction = (doc.getObject("X_Axis"), [""])
linearpattern.Mode = "offset"
linearpattern.Offset = 60
linearpattern.Occurrences = 2
linearpattern.Reversed = True
body.Tip = linearpattern

# Sketch on XZ plane
sketch12 = body.newObject("Sketcher::SketchObject", "Sketch011")
sketch12.AttachmentSupport = (doc.getObject("XZ_Plane"), [""])
sketch12.MapMode = "FlatFace"
sketch12.AttachmentOffset = App.Placement(App.Vector(0, 0, -8), App.Rotation())
sketch12.addGeometry(Part.Circle(App.Vector(10.5, 35.6, 0), App.Vector(0, 0, 1), 5.2), False)
sketch12.addGeometry(Part.Circle(App.Vector(70.5, 35.6, 0), App.Vector(0, 0, 1), 5.2), False)
sketch12.addGeometry(Part.Circle(App.Vector(0, 0, 0), App.Vector(0, 0, 1), 15), False)
sketch12.addGeometry(Part.Circle(App.Vector(-90, -90, 0), App.Vector(0, 0, 1), 10.5), False)
sketch12.addGeometry(Part.Circle(App.Vector(90, -90, 0), App.Vector(0, 0, 1), 10.5), False)
sketch12.addGeometry(Part.Circle(App.Vector(-90, 90, 0), App.Vector(0, 0, 1), 10.5), False)
sketch12.addGeometry(Part.Circle(App.Vector(90, 90, 0), App.Vector(0, 0, 1), 10.5), False)
sketch12.addConstraint(Sketcher.Constraint("Coincident", 2, 3, -1, 1))
sketch12.addConstraint(Sketcher.Constraint("Equal", 0, 1))
sketch12.addConstraint(Sketcher.Constraint("Equal", 3, 4))
sketch12.addConstraint(Sketcher.Constraint("Equal", 4, 5))
sketch12.addConstraint(Sketcher.Constraint("Equal", 5, 6))
sketch12.addConstraint(Sketcher.Constraint("Symmetric", 4, 3, 5, 3, -1, 1))
sketch12.addConstraint(Sketcher.Constraint("Symmetric", 3, 3, 6, 3, -1, 1))
sketch12.addConstraint(Sketcher.Constraint("Symmetric", 3, 3, 4, 3, -2))
sketch12.addConstraint(Sketcher.Constraint("Horizontal", 0, 3, 1, 3))
sketch12.addConstraint(Sketcher.Constraint("Diameter", 3, Q("21 mm")))
sketch12.addConstraint(Sketcher.Constraint("Diameter", 2, Q("30 mm")))
sketch12.addConstraint(Sketcher.Constraint("DistanceX", 3, 3, 4, 3, Q("180 mm")))
sketch12.addConstraint(Sketcher.Constraint("DistanceY", 3, 3, 5, 3, Q("180 mm")))
sketch12.addConstraint(Sketcher.Constraint("Diameter", 0, Q("10.4 mm")))
sketch12.addConstraint(Sketcher.Constraint("DistanceX", 0, 3, 1, 3, Q("60 mm")))
sketch12.addConstraint(Sketcher.Constraint("DistanceX", -1, 1, 0, 3, Q("10.5 mm")))
sketch12.addConstraint(Sketcher.Constraint("DistanceY", -1, 1, 0, 3, Q("35.6 mm")))
pocket6 = body.newObject("PartDesign::Pocket", "Pocket005")
pocket6.Profile = sketch12
pocket6.Length = 0.5
pocket6.Reversed = True

doc.recompute()
